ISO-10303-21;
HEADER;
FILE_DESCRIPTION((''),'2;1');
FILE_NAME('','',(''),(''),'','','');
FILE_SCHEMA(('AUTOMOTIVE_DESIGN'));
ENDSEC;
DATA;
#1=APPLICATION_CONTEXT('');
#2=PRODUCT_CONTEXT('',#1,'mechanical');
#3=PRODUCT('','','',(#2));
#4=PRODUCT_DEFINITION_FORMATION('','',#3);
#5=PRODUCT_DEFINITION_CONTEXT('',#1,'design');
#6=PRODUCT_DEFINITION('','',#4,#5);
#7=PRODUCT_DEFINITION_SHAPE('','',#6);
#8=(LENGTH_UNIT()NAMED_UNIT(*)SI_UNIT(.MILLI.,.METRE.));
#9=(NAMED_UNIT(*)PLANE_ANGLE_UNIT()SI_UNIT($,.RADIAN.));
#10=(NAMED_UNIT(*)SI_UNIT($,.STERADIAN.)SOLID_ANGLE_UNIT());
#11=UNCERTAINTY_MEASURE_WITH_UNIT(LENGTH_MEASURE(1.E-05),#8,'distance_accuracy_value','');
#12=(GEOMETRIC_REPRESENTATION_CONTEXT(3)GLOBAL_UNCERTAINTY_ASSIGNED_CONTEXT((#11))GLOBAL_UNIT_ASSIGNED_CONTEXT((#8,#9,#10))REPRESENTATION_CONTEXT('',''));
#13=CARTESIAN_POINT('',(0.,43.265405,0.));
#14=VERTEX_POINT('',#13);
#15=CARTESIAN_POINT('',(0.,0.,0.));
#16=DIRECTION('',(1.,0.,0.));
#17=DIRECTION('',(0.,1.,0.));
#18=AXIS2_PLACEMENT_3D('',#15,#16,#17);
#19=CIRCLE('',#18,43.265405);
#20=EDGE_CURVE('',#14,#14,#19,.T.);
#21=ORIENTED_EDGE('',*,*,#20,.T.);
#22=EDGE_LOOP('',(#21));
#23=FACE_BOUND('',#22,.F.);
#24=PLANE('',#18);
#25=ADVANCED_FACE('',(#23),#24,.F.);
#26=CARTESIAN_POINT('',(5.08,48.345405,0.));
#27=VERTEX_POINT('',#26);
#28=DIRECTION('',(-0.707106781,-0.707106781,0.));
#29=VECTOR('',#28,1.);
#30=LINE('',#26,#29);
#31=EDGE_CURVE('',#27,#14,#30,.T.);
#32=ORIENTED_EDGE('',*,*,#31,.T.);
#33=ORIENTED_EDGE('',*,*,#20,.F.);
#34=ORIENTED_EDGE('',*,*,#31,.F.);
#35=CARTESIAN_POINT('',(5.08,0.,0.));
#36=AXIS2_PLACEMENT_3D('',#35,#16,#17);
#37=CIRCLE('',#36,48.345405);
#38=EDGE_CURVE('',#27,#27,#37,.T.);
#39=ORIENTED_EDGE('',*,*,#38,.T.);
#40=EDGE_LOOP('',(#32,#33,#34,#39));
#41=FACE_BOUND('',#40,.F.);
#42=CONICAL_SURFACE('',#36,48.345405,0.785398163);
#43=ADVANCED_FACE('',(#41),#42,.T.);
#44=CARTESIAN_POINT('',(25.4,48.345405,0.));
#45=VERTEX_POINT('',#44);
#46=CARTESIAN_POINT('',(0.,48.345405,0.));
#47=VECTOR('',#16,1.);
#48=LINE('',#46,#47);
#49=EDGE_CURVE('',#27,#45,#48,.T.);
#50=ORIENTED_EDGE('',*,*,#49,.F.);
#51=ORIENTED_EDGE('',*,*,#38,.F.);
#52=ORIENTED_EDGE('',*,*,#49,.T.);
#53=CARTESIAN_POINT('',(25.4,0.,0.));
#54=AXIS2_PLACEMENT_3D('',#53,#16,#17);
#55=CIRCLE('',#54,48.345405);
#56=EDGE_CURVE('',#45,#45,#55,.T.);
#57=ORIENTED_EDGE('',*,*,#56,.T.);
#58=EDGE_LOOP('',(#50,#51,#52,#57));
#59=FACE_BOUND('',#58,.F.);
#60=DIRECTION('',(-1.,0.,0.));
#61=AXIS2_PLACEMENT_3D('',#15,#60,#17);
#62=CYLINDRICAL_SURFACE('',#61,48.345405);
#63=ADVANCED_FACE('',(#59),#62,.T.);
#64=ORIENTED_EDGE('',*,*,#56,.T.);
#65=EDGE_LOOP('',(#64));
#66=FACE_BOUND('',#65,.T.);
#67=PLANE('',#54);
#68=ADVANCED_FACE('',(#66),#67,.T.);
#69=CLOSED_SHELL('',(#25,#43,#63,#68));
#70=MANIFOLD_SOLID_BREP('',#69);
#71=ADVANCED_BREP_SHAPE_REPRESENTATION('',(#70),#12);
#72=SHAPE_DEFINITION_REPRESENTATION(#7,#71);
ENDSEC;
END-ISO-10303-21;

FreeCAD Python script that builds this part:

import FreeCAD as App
import Part
import Sketcher
from FreeCAD import Vector


def edges_at(feature, points):
    """Names of the edges that pass closest to the given points."""
    edges = feature.Shape.Edges
    near = lambda p: min(range(len(edges)), key=lambda i: edges[i].distToShape(Part.Vertex(*p))[0])
    return sorted({f"Edge{near(p) + 1}" for p in points})

doc = App.newDocument("Part")
params = doc.addObject("Spreadsheet::Sheet", "Params")
for row, (alias, value) in enumerate([
    ("pad1_length", "1 in"),
    ("chamfer_size", "0.2 in"),
], start=1):
    params.set(f"A{row}", alias)
    params.set(f"B{row}", "=" + value)
    params.setAlias(f"B{row}", alias)

body = doc.addObject("PartDesign::Body", "Body")

# Sketch on YZ plane
sketch1 = body.newObject("Sketcher::SketchObject", "Sketch")
sketch1.AttachmentSupport = (doc.getObject("YZ_Plane"), [""])
sketch1.MapMode = "FlatFace"
sketch1.addGeometry(Part.Circle(Vector(0, 0, 0), Vector(0, 0, 1), 48), False)
sketch1.addConstraint([
    Sketcher.Constraint("Coincident", 0, 3, -1, 1),
    Sketcher.Constraint("Diameter", 0, 96.69081),
])
pad1 = body.newObject("PartDesign::Pad", "Pad")
pad1.Profile = sketch1
pad1.setExpression("Length", "Params.pad1_length")
doc.recompute()

chamfer = body.newObject("PartDesign::Chamfer", "Chamfer")
chamfer.Base = (pad1, edges_at(pad1, [(0, -48.345, 0)]))
chamfer.setExpression("Size", "Params.chamfer_size")

doc.recompute()
